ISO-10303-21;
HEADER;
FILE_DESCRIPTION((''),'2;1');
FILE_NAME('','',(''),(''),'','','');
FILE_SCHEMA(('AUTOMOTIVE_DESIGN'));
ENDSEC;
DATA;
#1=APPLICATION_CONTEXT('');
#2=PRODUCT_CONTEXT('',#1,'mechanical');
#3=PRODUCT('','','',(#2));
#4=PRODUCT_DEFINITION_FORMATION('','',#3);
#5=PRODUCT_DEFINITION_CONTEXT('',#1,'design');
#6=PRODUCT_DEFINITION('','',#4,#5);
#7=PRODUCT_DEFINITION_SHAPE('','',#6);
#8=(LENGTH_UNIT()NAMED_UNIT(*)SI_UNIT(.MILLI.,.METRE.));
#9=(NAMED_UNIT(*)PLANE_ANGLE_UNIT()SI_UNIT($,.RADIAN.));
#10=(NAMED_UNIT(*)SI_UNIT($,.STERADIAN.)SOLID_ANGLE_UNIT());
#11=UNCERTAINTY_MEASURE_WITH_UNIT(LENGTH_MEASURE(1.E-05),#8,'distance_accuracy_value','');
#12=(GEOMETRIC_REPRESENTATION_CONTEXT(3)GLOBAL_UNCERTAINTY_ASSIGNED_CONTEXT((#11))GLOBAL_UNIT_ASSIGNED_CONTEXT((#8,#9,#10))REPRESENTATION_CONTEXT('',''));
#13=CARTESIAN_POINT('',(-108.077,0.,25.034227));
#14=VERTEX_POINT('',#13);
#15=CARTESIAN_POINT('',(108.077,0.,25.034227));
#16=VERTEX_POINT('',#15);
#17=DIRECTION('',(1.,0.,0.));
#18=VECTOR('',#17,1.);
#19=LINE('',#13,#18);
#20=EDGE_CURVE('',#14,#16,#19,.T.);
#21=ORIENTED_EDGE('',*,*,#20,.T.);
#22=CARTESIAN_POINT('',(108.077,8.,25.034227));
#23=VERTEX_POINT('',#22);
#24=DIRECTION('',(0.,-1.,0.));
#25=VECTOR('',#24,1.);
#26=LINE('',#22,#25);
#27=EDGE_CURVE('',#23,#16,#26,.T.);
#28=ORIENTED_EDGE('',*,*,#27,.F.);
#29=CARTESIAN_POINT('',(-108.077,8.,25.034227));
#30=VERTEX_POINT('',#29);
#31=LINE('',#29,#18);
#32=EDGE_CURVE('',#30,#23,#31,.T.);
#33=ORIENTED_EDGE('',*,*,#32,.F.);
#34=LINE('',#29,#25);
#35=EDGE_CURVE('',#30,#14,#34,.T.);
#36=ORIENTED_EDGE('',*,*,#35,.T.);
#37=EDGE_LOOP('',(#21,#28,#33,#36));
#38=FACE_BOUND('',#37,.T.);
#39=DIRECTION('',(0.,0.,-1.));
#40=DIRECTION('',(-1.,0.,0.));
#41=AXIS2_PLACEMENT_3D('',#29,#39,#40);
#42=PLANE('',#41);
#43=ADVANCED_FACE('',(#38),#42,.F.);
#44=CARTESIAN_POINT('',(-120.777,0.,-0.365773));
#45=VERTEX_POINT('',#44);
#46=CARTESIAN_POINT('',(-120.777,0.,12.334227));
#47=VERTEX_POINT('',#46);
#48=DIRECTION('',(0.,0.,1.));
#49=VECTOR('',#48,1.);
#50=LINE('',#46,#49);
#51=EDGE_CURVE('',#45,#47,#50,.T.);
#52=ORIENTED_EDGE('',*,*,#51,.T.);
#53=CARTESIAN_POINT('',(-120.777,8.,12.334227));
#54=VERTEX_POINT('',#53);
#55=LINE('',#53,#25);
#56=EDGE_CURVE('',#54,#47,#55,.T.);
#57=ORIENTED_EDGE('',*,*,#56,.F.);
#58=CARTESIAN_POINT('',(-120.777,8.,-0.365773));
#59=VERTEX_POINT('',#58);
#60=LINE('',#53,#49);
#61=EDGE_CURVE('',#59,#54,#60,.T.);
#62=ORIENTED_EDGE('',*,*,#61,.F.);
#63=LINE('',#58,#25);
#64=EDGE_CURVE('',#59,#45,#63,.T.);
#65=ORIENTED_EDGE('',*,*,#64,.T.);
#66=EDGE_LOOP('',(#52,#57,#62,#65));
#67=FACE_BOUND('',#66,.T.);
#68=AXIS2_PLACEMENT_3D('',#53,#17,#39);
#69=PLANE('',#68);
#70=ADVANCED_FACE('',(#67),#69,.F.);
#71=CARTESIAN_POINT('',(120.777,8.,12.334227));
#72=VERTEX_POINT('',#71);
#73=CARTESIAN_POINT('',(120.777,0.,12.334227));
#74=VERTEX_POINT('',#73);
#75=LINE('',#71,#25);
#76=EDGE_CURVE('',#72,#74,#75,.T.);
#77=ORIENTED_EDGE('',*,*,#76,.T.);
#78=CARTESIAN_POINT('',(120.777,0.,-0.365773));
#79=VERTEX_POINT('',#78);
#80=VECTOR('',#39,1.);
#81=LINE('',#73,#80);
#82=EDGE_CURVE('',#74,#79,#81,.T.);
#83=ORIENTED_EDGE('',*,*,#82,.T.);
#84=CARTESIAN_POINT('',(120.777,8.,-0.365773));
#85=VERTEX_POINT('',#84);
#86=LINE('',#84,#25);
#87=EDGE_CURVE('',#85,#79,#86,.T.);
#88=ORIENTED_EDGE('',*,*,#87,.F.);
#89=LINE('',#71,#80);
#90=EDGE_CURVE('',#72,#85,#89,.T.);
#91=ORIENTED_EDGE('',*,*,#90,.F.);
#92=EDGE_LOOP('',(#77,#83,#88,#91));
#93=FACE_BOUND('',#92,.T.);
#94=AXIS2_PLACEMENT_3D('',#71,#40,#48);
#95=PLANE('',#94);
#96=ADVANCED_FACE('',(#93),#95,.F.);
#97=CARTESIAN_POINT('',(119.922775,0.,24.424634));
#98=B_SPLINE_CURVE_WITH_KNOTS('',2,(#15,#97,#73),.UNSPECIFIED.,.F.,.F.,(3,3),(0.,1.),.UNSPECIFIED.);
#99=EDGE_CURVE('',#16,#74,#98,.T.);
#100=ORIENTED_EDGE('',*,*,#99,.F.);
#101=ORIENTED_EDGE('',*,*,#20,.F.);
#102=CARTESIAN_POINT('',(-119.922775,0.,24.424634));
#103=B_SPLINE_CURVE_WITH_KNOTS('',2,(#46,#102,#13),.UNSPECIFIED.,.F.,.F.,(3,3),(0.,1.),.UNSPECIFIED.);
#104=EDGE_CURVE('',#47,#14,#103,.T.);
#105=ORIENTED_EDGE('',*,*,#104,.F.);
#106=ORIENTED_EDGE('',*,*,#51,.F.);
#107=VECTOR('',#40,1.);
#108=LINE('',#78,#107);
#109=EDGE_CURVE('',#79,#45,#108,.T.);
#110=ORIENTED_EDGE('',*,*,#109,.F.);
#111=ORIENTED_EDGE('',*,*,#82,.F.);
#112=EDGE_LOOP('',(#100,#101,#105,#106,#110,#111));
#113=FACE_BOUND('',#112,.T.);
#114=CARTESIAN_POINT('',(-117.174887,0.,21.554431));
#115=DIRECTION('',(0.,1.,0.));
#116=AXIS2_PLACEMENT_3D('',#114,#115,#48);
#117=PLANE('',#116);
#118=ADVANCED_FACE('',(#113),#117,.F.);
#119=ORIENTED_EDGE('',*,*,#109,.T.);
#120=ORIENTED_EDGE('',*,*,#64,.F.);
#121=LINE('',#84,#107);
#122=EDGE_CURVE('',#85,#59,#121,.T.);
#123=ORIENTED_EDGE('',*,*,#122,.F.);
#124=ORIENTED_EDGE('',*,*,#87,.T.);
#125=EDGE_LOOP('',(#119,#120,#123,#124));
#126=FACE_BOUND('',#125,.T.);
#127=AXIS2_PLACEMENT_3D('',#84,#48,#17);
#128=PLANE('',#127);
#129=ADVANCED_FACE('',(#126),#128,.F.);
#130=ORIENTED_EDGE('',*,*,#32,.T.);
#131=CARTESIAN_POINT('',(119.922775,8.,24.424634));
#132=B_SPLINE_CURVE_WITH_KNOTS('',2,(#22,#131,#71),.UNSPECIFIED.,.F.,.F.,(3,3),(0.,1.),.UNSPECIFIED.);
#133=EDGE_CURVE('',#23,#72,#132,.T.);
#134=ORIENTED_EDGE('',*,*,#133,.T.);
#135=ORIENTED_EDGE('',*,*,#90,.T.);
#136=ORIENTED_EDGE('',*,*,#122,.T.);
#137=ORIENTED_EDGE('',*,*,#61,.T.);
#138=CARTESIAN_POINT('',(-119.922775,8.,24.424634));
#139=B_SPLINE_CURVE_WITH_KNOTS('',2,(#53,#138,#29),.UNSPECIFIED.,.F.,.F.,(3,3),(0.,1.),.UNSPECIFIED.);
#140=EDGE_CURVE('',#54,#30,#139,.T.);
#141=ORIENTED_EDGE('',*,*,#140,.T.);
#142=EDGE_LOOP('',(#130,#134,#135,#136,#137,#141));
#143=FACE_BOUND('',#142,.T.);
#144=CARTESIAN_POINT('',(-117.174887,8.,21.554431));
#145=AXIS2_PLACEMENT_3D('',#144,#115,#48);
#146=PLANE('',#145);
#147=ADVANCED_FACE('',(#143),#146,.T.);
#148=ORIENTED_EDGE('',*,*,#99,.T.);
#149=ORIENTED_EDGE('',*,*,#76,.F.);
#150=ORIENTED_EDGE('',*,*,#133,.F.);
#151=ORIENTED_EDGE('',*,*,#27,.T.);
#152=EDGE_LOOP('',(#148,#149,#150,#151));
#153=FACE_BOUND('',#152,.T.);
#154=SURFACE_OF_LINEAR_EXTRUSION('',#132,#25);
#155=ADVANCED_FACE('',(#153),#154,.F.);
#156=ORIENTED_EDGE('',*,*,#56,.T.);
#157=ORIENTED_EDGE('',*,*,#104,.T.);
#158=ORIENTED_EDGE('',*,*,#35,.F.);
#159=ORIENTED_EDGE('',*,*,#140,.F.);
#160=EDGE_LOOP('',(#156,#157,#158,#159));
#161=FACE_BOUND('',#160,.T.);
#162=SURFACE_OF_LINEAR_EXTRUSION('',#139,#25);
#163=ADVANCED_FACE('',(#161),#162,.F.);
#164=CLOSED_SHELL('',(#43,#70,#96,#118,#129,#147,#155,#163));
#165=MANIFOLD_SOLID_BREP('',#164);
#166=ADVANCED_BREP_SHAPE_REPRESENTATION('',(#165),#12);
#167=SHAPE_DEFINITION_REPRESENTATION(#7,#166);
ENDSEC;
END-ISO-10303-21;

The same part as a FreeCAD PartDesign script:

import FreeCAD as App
import Part
import Sketcher
from FreeCAD import Vector
Q = App.Units.Quantity

doc = App.newDocument("Part")
body = doc.addObject("PartDesign::Body", "Body")

sketch1 = body.newObject("Sketcher::SketchObject", "Sketch")
sketch1.AttachmentSupport = (doc.getObject("XZ_Plane"), [""])
sketch1.MapMode = "FlatFace"
sketch1.addGeometry([
    Part.LineSegment(Vector(-108.077, 25.034227, 0), Vector(108.077, 25.034227, 0)),
    Part.BSplineCurve([Vector(108.077, 25.034227, 0), Vector(119.922775, 24.424634, 0), Vector(120.777, 12.334227, 0)], [3, 3], [0, 1], False, 2, [1, 1, 1], False),
    Part.LineSegment(Vector(120.777, 12.334227, 0), Vector(120.777, -0.365773, 0)),
    Part.LineSegment(Vector(120.777, -0.365773, 0), Vector(-120.777, -0.365773, 0)),
    Part.LineSegment(Vector(-120.777, -0.365773, 0), Vector(-120.777, 12.334227, 0)),
    Part.BSplineCurve([Vector(-108.077, 25.034227, 0), Vector(-119.922775, 24.424634, 0), Vector(-120.777, 12.334227, 0)], [3, 3], [0, 1], False, 2, [1, 1, 1], False),
], False)
sketch1.addConstraint([
    Sketcher.Constraint("Block", 1),
    Sketcher.Constraint("Block", 5),
    Sketcher.Constraint("Coincident", 0, 2, 1, 1),
    Sketcher.Constraint("Coincident", 1, 2, 2, 1),
    Sketcher.Constraint("Coincident", 2, 2, 3, 1),
    Sketcher.Constraint("Coincident", 3, 2, 4, 1),
    Sketcher.Constraint("Coincident", 4, 2, 5, 2),
    Sketcher.Constraint("Coincident", 5, 1, 0, 1),
    Sketcher.Constraint("Vertical", 2),
    Sketcher.Constraint("Horizontal", 3),
    Sketcher.Constraint("Vertical", 4),
    Sketcher.Constraint("DistanceY", 2, 2, 2, 1, Q("0.5 in")),
])
pad1 = body.newObject("PartDesign::Pad", "Pad")
pad1.Profile = sketch1
pad1.Length = 8
pad1.Reversed = True

doc.recompute()
